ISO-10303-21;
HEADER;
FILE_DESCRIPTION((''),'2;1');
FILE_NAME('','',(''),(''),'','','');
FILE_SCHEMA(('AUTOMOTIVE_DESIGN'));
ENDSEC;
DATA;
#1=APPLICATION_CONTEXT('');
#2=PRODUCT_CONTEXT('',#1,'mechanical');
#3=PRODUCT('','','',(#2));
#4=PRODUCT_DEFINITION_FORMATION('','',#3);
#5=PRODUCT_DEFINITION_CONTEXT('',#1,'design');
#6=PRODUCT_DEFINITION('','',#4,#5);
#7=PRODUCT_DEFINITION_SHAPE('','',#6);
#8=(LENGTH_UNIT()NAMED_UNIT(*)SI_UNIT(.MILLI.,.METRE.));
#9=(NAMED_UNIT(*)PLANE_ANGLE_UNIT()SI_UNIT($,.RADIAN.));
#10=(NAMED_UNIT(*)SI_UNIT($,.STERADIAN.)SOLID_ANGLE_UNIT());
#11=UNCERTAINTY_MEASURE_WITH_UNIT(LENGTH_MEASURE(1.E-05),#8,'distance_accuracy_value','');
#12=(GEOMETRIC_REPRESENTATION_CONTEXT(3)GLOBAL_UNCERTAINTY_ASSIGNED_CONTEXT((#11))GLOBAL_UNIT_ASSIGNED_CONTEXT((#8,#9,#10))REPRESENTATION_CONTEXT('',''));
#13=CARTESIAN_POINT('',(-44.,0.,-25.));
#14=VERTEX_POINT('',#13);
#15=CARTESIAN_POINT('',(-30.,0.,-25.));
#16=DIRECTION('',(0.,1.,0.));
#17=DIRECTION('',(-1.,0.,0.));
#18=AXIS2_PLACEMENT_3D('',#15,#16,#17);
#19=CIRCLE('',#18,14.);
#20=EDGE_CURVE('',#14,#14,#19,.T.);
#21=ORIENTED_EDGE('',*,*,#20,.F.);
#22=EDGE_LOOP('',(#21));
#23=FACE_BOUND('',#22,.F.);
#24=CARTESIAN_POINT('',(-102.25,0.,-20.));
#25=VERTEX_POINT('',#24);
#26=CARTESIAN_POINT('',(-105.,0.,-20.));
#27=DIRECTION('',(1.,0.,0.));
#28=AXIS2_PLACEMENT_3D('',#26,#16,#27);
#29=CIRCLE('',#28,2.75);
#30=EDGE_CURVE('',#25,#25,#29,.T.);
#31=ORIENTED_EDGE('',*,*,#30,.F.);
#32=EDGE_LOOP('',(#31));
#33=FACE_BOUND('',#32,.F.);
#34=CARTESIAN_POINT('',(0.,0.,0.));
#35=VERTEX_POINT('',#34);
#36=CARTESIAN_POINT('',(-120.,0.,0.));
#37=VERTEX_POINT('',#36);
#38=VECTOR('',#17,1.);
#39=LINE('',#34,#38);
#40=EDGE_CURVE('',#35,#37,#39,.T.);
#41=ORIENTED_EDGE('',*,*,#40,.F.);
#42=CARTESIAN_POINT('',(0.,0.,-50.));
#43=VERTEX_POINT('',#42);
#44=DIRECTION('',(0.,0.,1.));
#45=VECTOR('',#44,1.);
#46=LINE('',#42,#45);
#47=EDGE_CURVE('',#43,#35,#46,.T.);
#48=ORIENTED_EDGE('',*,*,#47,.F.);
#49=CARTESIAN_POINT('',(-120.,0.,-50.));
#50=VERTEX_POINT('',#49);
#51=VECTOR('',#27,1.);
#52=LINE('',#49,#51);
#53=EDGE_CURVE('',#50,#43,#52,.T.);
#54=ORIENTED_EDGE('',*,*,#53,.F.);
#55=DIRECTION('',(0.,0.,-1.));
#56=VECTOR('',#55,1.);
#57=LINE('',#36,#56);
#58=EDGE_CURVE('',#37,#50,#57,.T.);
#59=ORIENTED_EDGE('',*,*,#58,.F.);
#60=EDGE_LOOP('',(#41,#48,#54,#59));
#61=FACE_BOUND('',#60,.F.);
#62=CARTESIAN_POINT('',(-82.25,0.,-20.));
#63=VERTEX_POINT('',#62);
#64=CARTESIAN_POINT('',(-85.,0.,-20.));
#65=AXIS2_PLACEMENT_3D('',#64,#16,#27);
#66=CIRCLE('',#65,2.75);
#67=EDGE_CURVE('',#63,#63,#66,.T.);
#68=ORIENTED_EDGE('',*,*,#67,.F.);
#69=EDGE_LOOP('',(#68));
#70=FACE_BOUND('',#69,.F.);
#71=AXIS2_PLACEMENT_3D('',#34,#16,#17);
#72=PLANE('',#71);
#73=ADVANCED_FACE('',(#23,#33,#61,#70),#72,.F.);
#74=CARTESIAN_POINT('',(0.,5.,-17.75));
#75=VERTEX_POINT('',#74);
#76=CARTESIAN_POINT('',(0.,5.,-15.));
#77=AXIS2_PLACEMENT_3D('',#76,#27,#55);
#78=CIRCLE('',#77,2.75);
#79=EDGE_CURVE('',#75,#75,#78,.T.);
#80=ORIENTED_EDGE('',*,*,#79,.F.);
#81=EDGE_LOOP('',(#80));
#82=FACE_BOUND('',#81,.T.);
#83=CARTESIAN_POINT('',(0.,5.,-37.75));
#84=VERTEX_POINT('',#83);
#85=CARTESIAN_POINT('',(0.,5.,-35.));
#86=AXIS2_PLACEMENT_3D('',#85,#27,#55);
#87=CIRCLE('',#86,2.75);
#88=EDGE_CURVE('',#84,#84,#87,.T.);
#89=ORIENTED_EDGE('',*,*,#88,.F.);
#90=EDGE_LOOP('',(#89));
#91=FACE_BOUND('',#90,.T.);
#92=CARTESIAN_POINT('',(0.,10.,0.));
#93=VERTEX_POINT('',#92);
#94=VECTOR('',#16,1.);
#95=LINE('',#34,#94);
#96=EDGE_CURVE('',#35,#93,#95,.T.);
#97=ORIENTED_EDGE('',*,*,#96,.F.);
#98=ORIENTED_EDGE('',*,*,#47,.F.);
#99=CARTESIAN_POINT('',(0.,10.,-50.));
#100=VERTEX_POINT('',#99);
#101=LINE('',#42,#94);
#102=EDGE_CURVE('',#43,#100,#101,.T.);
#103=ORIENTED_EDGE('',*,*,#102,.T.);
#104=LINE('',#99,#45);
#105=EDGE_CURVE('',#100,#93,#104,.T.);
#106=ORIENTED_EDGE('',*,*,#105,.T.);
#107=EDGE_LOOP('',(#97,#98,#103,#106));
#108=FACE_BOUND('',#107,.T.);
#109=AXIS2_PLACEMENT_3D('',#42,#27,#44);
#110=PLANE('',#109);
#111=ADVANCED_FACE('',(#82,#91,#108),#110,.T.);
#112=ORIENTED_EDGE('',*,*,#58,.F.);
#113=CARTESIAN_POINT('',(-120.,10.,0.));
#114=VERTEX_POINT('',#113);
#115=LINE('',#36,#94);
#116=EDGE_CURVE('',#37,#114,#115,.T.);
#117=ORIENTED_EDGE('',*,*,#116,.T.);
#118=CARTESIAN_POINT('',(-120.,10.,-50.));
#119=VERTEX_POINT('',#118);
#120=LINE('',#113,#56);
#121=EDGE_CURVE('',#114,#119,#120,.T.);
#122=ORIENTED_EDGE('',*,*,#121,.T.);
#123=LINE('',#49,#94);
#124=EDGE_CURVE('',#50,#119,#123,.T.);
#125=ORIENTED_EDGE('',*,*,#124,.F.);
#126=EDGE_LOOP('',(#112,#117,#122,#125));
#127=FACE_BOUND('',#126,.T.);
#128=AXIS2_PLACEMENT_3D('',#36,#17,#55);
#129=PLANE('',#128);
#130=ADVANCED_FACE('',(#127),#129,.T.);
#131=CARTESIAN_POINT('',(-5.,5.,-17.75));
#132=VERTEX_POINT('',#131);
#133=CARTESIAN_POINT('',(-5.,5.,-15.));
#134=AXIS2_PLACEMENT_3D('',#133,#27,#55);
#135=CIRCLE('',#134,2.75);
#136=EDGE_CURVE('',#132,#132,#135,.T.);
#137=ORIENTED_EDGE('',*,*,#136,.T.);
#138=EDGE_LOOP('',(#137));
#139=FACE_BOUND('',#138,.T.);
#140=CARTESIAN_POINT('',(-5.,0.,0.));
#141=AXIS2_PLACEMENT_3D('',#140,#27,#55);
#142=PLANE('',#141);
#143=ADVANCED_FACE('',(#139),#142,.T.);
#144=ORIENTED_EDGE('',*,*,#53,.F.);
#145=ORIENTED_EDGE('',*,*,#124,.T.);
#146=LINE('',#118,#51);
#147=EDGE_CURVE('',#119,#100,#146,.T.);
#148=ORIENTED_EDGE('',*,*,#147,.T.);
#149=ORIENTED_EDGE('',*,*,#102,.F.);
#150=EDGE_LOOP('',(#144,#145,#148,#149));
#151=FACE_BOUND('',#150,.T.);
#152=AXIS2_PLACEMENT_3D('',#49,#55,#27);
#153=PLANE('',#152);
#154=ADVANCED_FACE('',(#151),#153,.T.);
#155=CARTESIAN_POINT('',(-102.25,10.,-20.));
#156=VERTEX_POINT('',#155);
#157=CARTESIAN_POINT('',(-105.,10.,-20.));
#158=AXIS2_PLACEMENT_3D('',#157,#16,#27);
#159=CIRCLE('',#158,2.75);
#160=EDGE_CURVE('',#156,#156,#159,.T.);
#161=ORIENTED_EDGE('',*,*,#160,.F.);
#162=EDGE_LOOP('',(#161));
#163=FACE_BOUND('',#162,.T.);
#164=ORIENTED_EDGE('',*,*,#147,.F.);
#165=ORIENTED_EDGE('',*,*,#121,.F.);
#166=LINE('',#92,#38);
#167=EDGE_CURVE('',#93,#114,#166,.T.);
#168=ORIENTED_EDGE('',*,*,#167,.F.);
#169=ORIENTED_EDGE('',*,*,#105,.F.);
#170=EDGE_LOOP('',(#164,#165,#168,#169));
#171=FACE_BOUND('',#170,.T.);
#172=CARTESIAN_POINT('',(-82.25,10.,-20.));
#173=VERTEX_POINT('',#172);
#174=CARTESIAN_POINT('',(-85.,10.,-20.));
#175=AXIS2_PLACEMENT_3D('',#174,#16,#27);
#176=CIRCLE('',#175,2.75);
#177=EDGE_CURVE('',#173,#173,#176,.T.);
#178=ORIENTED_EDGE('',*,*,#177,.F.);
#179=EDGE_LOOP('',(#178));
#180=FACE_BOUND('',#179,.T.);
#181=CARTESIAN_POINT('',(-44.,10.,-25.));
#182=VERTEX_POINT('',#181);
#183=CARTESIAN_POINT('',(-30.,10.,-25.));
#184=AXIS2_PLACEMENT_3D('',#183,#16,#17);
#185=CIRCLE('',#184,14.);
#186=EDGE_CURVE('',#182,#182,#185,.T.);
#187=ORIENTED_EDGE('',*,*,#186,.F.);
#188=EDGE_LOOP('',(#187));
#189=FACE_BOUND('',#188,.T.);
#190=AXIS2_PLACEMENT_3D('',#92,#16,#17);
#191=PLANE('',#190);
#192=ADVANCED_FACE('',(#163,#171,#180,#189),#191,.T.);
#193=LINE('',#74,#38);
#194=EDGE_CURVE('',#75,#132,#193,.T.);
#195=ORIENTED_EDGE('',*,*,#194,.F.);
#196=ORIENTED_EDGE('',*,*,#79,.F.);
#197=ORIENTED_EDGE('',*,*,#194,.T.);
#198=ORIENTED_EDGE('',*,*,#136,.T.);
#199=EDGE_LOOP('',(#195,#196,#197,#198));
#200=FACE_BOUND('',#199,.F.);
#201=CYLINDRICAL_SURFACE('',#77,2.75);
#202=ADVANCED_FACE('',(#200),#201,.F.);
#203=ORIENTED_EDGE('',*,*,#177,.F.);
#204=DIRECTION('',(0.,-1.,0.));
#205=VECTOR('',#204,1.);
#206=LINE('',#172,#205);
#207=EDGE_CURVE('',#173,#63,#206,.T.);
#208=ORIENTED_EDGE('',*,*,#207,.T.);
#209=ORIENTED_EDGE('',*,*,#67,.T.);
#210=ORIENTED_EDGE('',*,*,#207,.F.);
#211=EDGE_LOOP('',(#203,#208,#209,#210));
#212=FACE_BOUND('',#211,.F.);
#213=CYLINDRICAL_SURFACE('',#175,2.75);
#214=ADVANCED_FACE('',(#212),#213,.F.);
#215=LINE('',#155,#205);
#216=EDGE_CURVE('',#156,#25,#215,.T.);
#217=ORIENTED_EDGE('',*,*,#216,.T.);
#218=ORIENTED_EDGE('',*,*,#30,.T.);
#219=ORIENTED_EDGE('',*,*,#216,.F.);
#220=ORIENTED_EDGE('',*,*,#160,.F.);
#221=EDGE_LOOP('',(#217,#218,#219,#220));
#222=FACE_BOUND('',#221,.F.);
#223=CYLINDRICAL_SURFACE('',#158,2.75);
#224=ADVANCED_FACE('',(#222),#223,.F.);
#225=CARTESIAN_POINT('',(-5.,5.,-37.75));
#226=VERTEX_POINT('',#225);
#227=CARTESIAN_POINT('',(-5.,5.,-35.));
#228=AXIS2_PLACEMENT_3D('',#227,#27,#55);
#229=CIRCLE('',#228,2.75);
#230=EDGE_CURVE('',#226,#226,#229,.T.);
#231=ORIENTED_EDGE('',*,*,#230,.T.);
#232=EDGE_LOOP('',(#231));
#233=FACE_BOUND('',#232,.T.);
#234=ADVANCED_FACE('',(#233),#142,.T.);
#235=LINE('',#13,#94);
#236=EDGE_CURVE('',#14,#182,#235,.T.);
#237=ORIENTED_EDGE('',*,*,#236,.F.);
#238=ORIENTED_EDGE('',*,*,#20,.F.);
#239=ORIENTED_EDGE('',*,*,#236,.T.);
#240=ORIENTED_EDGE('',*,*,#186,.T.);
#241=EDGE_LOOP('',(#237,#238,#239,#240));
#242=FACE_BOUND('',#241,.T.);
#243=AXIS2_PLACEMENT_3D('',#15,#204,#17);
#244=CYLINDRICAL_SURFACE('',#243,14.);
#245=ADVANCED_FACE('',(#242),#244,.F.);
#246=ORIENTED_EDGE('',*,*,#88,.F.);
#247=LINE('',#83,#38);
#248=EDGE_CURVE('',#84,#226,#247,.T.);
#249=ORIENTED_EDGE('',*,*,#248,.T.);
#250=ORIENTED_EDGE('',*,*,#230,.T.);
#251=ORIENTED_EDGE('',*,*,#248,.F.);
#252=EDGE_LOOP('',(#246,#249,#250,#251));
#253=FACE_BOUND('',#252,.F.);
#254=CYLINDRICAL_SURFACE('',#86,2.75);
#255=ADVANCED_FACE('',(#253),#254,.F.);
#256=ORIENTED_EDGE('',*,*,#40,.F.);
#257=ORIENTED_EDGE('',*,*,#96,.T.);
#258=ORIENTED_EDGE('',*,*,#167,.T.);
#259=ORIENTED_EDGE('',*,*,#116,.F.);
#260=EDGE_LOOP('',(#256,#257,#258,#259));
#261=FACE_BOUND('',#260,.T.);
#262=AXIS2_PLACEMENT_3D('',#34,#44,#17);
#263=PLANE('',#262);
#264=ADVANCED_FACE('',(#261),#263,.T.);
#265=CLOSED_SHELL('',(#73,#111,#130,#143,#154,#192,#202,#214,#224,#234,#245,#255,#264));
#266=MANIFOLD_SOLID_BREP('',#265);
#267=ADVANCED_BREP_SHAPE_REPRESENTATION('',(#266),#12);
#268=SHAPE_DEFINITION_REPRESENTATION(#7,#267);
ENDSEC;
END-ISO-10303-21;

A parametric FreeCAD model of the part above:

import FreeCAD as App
import Part
import Sketcher
from FreeCAD import Vector
Q = App.Units.Quantity


def add_polygon(sketch, points):
    """Adds a closed chain of lines whose ends are joined by coincident constraints."""
    first, n = sketch.GeometryCount, len(points)
    for a, b in zip(points, points[1:] + points[:1]):
        sketch.addGeometry(Part.LineSegment(App.Vector(*a, 0), App.Vector(*b, 0)), False)
    for i in range(n):
        sketch.addConstraint(Sketcher.Constraint("Coincident", first + i, 2, first + (i + 1) % n, 1))

doc = App.newDocument("Part")
body = doc.addObject("PartDesign::Body", "Body")

sketch1 = doc.addObject("Sketcher::SketchObject", "Sketch")
body.addObject(sketch1)
sketch1.AttachmentSupport = (doc.XZ_Plane, [""])
sketch1.MapMode = "FlatFace"
add_polygon(sketch1, [(-120, 0), (0, 0), (0, -50), (-120, -50)])
sketch1.addGeometry(Part.Circle(Vector(-30, -25, 0), Vector(0, 0, 1), 14), False)
sketch1.addConstraint([
    Sketcher.Constraint("Horizontal", 0),
    Sketcher.Constraint("Vertical", 1),
    Sketcher.Constraint("Horizontal", 2),
    Sketcher.Constraint("Vertical", 3),
    Sketcher.Constraint("Coincident", 0, 2, -1, 1),
    Sketcher.Constraint("Diameter", 4, Q("28 mm")),
    Sketcher.Constraint("DistanceX", 0, 1, 0, 2, Q("120 mm")),
    Sketcher.Constraint("DistanceY", 1, 2, 1, 1, Q("50 mm")),
    Sketcher.Constraint("DistanceX", 4, 3, -1, 1, Q("30 mm")),
    Sketcher.Constraint("DistanceY", 4, 3, -1, 1, Q("25 mm")),
])
pad1 = doc.addObject("PartDesign::Pad", "Pad")
body.addObject(pad1)
pad1.Profile = sketch1
pad1.Length = 10
pad1.Reversed = True

sketch2 = doc.addObject("Sketcher::SketchObject", "Sketch001")
body.addObject(sketch2)
sketch2.AttachmentSupport = (doc.XZ_Plane, [""])
sketch2.MapMode = "FlatFace"
sketch2.AttachmentOffset = App.Placement(Vector(0, 0, -10), App.Rotation())
sketch2.addGeometry([
    Part.Circle(Vector(-105, -20, 0), Vector(0, 0, 1), 2.75),
    Part.Circle(Vector(-85, -20, 0), Vector(0, 0, 1), 2.75),
], False)
sketch2.addConstraint([
    Sketcher.Constraint("Equal", 0, 1),
    Sketcher.Constraint("Horizontal", 0, 3, 1, 3),
    Sketcher.Constraint("Diameter", 0, Q("5.5 mm")),
    Sketcher.Constraint("DistanceY", 0, 3, -1, 1, Q("20 mm")),
    Sketcher.Constraint("DistanceX", 0, 3, 1, 3, Q("20 mm")),
    Sketcher.Constraint("DistanceX", 0, 3, -1, 1, Q("105 mm")),
])
pocket1 = doc.addObject("PartDesign::Pocket", "Pocket")
body.addObject(pocket1)
pocket1.Profile = sketch2
pocket1.Length = 10
pocket1.Reversed = True

sketch3 = doc.addObject("Sketcher::SketchObject", "Sketch002")
body.addObject(sketch3)
sketch3.AttachmentSupport = (doc.YZ_Plane, [""])
sketch3.MapMode = "FlatFace"
sketch3.addGeometry([
    Part.Circle(Vector(5, -15, 0), Vector(0, 0, 1), 2.75),
    Part.Circle(Vector(5, -35, 0), Vector(0, 0, 1), 2.75),
], False)
sketch3.addConstraint([
    Sketcher.Constraint("Equal", 0, 1),
    Sketcher.Constraint("Vertical", 0, 3, 1, 3),
    Sketcher.Constraint("Diameter", 0, Q("5.5 mm")),
    Sketcher.Constraint("DistanceX", -1, 1, 0, 3, Q("5 mm")),
    Sketcher.Constraint("DistanceY", 0, 3, -1, 1, Q("15 mm")),
    Sketcher.Constraint("DistanceY", 1, 3, 0, 3, Q("20 mm")),
])
pocket2 = doc.addObject("PartDesign::Pocket", "Pocket001")
body.addObject(pocket2)
pocket2.Profile = sketch3
pocket2.Length = 5

doc.recompute()
